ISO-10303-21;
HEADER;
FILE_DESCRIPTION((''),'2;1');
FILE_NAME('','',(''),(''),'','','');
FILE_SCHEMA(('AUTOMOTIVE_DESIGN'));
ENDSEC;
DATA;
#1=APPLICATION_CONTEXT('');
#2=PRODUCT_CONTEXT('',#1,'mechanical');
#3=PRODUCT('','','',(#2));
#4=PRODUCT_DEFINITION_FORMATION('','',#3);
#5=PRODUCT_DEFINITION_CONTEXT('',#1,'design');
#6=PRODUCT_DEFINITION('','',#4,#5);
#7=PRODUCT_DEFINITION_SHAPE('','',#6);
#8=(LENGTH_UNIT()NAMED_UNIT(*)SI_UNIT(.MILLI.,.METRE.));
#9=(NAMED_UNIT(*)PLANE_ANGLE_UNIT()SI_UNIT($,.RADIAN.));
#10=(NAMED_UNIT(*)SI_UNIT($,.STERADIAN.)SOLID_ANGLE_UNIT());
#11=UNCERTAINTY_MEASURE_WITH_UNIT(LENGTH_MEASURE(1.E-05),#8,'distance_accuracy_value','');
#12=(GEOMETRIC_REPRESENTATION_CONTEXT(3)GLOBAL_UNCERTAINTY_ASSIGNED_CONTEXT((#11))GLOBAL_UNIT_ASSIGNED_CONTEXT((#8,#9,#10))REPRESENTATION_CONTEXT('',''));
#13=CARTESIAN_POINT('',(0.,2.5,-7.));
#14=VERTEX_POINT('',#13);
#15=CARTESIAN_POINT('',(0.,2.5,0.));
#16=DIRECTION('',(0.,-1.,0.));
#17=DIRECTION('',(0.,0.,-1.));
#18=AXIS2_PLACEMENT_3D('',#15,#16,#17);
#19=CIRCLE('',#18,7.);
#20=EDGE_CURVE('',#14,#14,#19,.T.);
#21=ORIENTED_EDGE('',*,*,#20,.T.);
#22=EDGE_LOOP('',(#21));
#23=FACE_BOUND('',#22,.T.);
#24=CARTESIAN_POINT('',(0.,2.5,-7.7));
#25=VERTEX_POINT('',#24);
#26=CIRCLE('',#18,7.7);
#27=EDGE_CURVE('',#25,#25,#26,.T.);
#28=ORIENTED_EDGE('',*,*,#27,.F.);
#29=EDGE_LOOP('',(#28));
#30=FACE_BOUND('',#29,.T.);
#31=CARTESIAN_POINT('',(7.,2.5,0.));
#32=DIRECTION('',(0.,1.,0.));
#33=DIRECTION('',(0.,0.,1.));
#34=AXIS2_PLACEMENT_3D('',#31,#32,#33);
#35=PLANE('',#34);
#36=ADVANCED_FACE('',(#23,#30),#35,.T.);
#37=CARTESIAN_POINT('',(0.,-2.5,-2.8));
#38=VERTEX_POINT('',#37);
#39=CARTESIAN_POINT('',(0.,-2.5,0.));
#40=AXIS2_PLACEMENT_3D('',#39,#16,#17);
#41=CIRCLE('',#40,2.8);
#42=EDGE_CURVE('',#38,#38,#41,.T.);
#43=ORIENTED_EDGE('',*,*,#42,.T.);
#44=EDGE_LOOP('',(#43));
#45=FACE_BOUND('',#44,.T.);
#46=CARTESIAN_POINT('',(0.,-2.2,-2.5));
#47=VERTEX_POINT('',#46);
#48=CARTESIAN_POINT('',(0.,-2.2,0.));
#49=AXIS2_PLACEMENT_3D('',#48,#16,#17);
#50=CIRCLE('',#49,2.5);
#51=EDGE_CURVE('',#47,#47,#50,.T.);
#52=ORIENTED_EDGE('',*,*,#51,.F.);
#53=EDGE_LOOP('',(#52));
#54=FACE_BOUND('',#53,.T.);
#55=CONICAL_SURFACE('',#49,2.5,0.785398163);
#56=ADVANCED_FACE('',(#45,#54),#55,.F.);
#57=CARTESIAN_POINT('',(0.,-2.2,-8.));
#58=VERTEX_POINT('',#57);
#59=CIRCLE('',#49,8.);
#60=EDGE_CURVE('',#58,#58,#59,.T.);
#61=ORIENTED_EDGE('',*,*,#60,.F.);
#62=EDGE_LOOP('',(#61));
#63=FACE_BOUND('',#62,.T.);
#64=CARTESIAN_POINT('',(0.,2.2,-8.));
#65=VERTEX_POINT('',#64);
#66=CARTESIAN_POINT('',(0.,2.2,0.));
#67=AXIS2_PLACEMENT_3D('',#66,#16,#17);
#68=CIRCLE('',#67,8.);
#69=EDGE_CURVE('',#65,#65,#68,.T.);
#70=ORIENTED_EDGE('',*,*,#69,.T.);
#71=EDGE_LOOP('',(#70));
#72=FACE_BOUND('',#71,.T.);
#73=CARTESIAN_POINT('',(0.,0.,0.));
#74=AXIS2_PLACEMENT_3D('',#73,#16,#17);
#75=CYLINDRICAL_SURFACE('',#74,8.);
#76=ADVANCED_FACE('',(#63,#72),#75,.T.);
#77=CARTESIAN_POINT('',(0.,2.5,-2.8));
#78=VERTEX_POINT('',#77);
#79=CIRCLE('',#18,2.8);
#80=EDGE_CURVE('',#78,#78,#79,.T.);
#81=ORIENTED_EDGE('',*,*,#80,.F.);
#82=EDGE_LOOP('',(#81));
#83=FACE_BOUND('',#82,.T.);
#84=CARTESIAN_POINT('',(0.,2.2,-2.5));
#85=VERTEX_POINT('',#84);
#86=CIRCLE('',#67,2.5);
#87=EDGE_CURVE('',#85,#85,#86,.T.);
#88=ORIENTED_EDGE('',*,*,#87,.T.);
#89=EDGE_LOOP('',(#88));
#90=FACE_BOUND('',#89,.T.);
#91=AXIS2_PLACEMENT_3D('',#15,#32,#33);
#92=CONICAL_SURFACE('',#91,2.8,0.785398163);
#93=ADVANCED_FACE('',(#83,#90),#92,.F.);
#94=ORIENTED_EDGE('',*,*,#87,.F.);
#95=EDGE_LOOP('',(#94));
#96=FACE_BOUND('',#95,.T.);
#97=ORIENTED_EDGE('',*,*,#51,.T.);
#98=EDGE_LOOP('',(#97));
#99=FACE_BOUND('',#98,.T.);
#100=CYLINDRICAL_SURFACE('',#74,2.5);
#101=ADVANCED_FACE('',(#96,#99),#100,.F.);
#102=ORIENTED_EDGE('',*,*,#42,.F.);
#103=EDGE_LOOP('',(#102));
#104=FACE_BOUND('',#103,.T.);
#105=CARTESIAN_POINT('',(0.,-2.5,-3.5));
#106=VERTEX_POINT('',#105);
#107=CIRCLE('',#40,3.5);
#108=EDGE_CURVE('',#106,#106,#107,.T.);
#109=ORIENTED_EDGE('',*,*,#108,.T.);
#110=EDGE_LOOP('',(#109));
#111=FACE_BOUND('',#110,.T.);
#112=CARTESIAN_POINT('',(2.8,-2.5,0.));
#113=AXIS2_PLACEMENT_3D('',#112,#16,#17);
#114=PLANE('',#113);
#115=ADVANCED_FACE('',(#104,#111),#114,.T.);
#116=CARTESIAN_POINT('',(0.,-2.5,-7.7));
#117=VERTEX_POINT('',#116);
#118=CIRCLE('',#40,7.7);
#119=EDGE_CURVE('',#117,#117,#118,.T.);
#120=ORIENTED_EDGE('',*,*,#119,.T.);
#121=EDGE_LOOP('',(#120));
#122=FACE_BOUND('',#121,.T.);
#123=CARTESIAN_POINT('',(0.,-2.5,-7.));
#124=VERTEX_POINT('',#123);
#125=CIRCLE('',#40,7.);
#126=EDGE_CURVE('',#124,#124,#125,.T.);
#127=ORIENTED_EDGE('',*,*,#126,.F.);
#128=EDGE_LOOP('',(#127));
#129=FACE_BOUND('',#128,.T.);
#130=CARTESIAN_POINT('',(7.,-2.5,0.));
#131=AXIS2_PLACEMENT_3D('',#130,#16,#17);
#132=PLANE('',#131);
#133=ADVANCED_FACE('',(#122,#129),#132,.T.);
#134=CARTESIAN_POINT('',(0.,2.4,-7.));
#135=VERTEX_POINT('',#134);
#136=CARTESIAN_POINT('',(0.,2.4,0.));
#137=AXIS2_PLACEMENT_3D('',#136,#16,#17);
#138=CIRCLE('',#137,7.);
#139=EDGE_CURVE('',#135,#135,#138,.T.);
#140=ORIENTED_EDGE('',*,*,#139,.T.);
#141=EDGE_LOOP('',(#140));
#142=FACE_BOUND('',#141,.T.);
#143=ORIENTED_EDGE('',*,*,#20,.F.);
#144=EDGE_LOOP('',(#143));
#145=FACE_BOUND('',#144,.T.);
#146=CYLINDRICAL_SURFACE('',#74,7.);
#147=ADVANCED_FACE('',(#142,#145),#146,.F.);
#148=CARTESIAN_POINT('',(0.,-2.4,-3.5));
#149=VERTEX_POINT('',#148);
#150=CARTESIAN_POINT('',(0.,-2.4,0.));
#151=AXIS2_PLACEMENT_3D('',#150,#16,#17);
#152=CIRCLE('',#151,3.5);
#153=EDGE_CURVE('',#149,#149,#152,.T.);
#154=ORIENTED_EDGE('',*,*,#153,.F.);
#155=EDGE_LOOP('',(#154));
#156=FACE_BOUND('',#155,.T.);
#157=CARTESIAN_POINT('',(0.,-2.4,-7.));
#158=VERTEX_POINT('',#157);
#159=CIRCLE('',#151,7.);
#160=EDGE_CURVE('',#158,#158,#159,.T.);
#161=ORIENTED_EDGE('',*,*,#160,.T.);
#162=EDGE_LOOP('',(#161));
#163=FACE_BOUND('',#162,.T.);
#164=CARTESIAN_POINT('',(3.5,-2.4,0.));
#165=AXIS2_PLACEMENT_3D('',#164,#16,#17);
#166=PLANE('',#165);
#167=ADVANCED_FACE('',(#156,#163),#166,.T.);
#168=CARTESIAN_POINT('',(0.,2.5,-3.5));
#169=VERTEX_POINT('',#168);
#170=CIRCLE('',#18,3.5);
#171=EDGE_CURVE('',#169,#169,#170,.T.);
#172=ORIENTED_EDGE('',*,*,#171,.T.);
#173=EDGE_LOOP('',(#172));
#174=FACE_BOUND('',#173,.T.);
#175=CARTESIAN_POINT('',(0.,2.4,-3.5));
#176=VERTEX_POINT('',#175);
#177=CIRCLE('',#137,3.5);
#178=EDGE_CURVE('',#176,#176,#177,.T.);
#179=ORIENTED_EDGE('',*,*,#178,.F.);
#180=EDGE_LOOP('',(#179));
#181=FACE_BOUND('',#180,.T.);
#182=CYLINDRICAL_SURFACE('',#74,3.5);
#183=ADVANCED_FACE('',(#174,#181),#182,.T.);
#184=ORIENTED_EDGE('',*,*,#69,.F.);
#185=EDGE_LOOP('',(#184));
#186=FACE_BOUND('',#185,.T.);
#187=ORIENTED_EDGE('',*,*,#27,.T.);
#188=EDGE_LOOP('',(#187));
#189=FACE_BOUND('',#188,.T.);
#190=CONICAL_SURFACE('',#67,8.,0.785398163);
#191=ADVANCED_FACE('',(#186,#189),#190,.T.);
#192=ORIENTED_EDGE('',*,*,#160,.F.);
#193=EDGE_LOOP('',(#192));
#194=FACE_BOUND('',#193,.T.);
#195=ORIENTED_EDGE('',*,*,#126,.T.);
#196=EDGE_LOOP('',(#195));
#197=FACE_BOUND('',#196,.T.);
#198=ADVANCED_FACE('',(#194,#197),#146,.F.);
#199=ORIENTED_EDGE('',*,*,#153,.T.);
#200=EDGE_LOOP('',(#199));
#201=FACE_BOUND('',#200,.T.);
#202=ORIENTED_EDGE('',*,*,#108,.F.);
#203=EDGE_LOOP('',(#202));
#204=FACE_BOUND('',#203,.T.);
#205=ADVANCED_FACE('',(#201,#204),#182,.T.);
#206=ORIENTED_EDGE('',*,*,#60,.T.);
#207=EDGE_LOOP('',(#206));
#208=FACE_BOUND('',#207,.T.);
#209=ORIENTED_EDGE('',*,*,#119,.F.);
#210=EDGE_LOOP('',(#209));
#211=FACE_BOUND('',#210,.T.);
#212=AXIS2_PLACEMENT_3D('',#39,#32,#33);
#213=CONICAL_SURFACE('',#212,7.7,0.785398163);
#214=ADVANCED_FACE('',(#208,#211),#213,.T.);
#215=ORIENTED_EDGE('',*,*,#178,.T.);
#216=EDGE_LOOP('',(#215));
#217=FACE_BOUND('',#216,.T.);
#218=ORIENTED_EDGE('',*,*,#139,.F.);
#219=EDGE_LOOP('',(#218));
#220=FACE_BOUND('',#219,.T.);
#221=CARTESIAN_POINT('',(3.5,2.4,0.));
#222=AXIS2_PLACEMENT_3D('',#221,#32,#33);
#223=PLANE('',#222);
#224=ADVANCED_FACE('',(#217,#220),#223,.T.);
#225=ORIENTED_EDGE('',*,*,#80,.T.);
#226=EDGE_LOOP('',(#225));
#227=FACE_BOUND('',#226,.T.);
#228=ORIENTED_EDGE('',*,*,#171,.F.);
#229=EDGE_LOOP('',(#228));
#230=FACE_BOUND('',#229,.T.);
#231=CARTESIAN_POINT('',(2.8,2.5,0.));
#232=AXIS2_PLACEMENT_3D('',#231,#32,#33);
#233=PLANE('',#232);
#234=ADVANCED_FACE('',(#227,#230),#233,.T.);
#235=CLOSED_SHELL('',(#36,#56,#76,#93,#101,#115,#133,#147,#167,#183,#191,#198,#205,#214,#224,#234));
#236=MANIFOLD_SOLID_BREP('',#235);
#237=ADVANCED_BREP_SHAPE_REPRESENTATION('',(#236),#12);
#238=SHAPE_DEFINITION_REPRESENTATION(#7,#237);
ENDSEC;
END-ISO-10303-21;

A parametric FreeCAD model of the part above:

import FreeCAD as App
import Part
import Sketcher


def add_polygon(sketch, points):
    """Adds a closed chain of lines whose ends are joined by coincident constraints."""
    first, n = sketch.GeometryCount, len(points)
    for a, b in zip(points, points[1:] + points[:1]):
        sketch.addGeometry(Part.LineSegment(App.Vector(*a, 0), App.Vector(*b, 0)), False)
    for i in range(n):
        sketch.addConstraint(Sketcher.Constraint("Coincident", first + i, 2, first + (i + 1) % n, 1))

doc = App.newDocument("Part")
body = doc.addObject("PartDesign::Body", "Body")

# Sketch on XY plane
sketch1 = body.newObject("Sketcher::SketchObject", "Sketch")
sketch1.AttachmentSupport = (doc.getObject("XY_Plane"), [""])
sketch1.MapMode = "FlatFace"
add_polygon(sketch1, [(2.5, 2.2), (2.5, -2.2), (2.8, -2.5), (3.5, -2.5), (3.5, -2.4), (7, -2.4), (7, -2.5), (7.7, -2.5), (8, -2.2), (8, 2.2), (7.7, 2.5), (7, 2.5), (7, 2.4), (3.5, 2.4), (3.5, 2.5), (2.8, 2.5)])  # lines 0-15
sketch1.addConstraint([
    Sketcher.Constraint("Vertical", 0),
    Sketcher.Constraint("Horizontal", 2),
    Sketcher.Constraint("Vertical", 3),
    Sketcher.Constraint("Horizontal", 4),
    Sketcher.Constraint("Vertical", 5),
    Sketcher.Constraint("Horizontal", 6),
    Sketcher.Constraint("Vertical", 8),
    Sketcher.Constraint("Horizontal", 10),
    Sketcher.Constraint("Vertical", 11),
    Sketcher.Constraint("Horizontal", 12),
    Sketcher.Constraint("Vertical", 13),
    Sketcher.Constraint("Horizontal", 14),
    Sketcher.Constraint("Symmetric", 6, 2, 9, 2, -1),
    Sketcher.Constraint("Symmetric", 4, 2, 11, 2, -1),
    Sketcher.Constraint("Symmetric", 2, 2, 13, 2, -1),
    Sketcher.Constraint("Perpendicular", 1, 7),
    Sketcher.Constraint("Perpendicular", 7, 9),
    Sketcher.Constraint("Perpendicular", 9, 15),
    Sketcher.Constraint("Horizontal", 2, 2, 5, 2),
    Sketcher.Constraint("Horizontal", 0, 2, 7, 2),
    Sketcher.Constraint("Horizontal", 8, 2, 15, 2),
    Sketcher.Constraint("Vertical", 1, 2, 14, 2),
    Sketcher.Constraint("Equal", 2, 6),
    Sketcher.Constraint("DistanceX", 2, 1, 2, 2, 0.7),
    Sketcher.Constraint("DistanceX", 4, 1, 4, 2, 3.5),
    Sketcher.Constraint("DistanceY", 0, 2, 0, 1, 4.4),
    Sketcher.Constraint("DistanceY", 3, 1, 3, 2, 0.1),
    Sketcher.Constraint("DistanceX", -1, 1, 4, 2, 7.0),
    Sketcher.Constraint("DistanceX", -1, 1, 7, 2, 8.0),
])
revolution = body.newObject("PartDesign::Revolution", "Revolution")
revolution.Profile = sketch1
revolution.ReferenceAxis = (sketch1, ["V_Axis"])
revolution.Angle = 360

doc.recompute()
